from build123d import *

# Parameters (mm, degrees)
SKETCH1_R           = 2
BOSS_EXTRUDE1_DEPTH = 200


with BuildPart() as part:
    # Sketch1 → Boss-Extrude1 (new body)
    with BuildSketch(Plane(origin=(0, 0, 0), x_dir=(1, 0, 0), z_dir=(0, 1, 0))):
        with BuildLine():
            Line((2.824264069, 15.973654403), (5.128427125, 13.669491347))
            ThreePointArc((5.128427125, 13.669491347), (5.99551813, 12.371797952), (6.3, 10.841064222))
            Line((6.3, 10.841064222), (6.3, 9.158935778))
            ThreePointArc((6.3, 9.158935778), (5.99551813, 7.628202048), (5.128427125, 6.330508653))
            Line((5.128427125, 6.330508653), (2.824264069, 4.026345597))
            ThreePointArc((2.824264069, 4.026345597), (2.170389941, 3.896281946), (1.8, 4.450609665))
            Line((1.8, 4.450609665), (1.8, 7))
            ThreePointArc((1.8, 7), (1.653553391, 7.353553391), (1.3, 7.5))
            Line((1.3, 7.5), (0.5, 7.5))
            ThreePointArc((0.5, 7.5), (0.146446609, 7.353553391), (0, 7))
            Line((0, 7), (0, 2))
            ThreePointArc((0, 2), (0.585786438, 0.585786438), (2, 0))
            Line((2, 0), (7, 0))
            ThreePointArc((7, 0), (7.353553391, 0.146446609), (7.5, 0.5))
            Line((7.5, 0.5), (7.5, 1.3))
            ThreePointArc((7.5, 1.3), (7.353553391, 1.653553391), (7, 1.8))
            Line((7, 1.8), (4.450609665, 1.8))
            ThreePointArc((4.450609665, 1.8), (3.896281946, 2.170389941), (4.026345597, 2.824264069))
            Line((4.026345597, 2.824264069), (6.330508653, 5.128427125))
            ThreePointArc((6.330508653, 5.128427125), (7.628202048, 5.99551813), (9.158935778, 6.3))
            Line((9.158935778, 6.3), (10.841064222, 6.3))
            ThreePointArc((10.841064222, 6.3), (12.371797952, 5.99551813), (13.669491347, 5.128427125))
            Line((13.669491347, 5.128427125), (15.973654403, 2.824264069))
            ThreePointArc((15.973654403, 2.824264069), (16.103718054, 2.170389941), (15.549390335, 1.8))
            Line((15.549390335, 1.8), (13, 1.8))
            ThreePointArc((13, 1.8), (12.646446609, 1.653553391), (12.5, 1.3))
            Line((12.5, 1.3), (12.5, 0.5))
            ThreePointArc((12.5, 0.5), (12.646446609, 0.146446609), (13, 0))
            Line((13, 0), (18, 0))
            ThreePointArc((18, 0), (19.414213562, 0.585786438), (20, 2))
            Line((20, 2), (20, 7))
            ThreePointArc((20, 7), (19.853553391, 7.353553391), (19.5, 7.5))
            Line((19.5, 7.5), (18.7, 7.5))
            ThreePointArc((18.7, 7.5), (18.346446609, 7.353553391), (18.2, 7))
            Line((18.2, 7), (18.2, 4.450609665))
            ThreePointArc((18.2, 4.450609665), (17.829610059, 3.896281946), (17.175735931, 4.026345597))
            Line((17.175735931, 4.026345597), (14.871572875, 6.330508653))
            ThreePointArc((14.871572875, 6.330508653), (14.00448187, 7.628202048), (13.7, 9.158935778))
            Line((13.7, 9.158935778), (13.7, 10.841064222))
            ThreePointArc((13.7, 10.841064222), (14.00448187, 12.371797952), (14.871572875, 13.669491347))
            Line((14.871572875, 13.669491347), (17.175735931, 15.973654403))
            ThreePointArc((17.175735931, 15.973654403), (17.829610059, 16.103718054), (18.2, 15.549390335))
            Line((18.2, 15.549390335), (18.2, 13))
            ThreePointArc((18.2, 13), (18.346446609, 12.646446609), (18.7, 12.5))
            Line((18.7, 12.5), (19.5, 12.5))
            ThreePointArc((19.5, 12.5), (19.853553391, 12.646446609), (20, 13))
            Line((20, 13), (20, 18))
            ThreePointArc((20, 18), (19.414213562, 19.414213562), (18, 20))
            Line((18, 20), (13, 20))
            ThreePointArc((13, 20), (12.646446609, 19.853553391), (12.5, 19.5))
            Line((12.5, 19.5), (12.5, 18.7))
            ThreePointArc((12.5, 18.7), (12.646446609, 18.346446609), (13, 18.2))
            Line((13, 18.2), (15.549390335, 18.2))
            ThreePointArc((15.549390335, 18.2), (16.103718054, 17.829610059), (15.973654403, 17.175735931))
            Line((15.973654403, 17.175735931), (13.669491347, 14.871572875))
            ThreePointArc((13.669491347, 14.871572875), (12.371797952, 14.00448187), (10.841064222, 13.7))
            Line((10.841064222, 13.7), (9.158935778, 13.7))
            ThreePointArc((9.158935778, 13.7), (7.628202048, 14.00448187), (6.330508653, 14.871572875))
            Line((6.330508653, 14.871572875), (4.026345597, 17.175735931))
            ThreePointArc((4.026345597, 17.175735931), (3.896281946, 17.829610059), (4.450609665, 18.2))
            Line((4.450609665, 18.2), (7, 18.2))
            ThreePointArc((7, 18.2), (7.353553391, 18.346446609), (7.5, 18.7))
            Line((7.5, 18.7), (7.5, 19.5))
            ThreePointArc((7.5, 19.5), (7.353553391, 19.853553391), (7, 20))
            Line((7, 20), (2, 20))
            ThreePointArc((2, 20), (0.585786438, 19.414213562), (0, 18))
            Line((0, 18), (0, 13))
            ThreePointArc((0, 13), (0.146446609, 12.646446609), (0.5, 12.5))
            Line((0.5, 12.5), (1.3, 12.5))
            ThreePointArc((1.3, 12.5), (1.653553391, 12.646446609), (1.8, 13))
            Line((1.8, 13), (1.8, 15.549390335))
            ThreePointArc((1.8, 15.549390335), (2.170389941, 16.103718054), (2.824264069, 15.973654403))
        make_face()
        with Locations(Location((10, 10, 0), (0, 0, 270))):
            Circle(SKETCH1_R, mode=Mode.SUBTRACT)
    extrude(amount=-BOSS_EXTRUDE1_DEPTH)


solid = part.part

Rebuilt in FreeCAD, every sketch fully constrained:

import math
import FreeCAD as App
import Part
import Sketcher

doc = App.newDocument("Part")
body = doc.addObject("PartDesign::Body", "Body")

sketch1 = doc.addObject("Sketcher::SketchObject", "Sketch")
body.addObject(sketch1)
sketch1.AttachmentSupport = (doc.XZ_Plane, [""])
sketch1.MapMode = "FlatFace"
sketch1.addGeometry([
    Part.LineSegment(App.Vector(2.82, -15.97, 0), App.Vector(5.13, -13.67, 0)),
    Part.ArcOfCircle(Part.Circle(App.Vector(2.3, -10.84, 0), App.Vector(0, 0, 1), 4), math.radians(-45), math.radians(0)),
    Part.LineSegment(App.Vector(6.3, -10.84, 0), App.Vector(6.3, -9.16, 0)),
    Part.ArcOfCircle(Part.Circle(App.Vector(2.3, -9.16, 0), App.Vector(0, 0, 1), 4), math.radians(0), math.radians(45)),
    Part.LineSegment(App.Vector(5.13, -6.33, 0), App.Vector(2.82, -4.03, 0)),
    Part.ArcOfCircle(Part.Circle(App.Vector(2.4, -4.45, 0), App.Vector(0, 0, 1), 0.6), math.radians(45), math.radians(180)),
    Part.LineSegment(App.Vector(1.8, -4.45, 0), App.Vector(1.8, -7, 0)),
    Part.ArcOfCircle(Part.Circle(App.Vector(1.3, -7, 0), App.Vector(0, 0, 1), 0.5), math.radians(-90), math.radians(0)),
    Part.LineSegment(App.Vector(1.3, -7.5, 0), App.Vector(0.5, -7.5, 0)),
    Part.ArcOfCircle(Part.Circle(App.Vector(0.5, -7, 0), App.Vector(0, 0, 1), 0.5), math.radians(180), math.radians(270)),
    Part.LineSegment(App.Vector(0, -7, 0), App.Vector(0, -2, 0)),
    Part.ArcOfCircle(Part.Circle(App.Vector(2, -2, 0), App.Vector(0, 0, 1), 2), math.radians(90), math.radians(180)),
    Part.LineSegment(App.Vector(2, 0, 0), App.Vector(7, 0, 0)),
    Part.ArcOfCircle(Part.Circle(App.Vector(7, -0.5, 0), App.Vector(0, 0, 1), 0.5), math.radians(0), math.radians(90)),
    Part.LineSegment(App.Vector(7.5, -0.5, 0), App.Vector(7.5, -1.3, 0)),
    Part.ArcOfCircle(Part.Circle(App.Vector(7, -1.3, 0), App.Vector(0, 0, 1), 0.5), math.radians(-90), math.radians(0)),
    Part.LineSegment(App.Vector(7, -1.8, 0), App.Vector(4.45, -1.8, 0)),
    Part.ArcOfCircle(Part.Circle(App.Vector(4.45, -2.4, 0), App.Vector(0, 0, 1), 0.6), math.radians(90), math.radians(225)),
    Part.LineSegment(App.Vector(4.03, -2.82, 0), App.Vector(6.33, -5.13, 0)),
    Part.ArcOfCircle(Part.Circle(App.Vector(9.16, -2.3, 0), App.Vector(0, 0, 1), 4), math.radians(-135), math.radians(-90)),
    Part.LineSegment(App.Vector(9.16, -6.3, 0), App.Vector(10.84, -6.3, 0)),
    Part.ArcOfCircle(Part.Circle(App.Vector(10.84, -2.3, 0), App.Vector(0, 0, 1), 4), math.radians(-90), math.radians(-45)),
    Part.LineSegment(App.Vector(13.67, -5.13, 0), App.Vector(15.97, -2.82, 0)),
    Part.ArcOfCircle(Part.Circle(App.Vector(15.55, -2.4, 0), App.Vector(0, 0, 1), 0.6), math.radians(-45), math.radians(90)),
    Part.LineSegment(App.Vector(15.55, -1.8, 0), App.Vector(13, -1.8, 0)),
    Part.ArcOfCircle(Part.Circle(App.Vector(13, -1.3, 0), App.Vector(0, 0, 1), 0.5), math.radians(180), math.radians(270)),
    Part.LineSegment(App.Vector(12.5, -1.3, 0), App.Vector(12.5, -0.5, 0)),
    Part.ArcOfCircle(Part.Circle(App.Vector(13, -0.5, 0), App.Vector(0, 0, 1), 0.5), math.radians(90), math.radians(180)),
    Part.LineSegment(App.Vector(13, 0, 0), App.Vector(18, 0, 0)),
    Part.ArcOfCircle(Part.Circle(App.Vector(18, -2, 0), App.Vector(0, 0, 1), 2), math.radians(0), math.radians(90)),
    Part.LineSegment(App.Vector(20, -2, 0), App.Vector(20, -7, 0)),
    Part.ArcOfCircle(Part.Circle(App.Vector(19.5, -7, 0), App.Vector(0, 0, 1), 0.5), math.radians(-90), math.radians(0)),
    Part.LineSegment(App.Vector(19.5, -7.5, 0), App.Vector(18.7, -7.5, 0)),
    Part.ArcOfCircle(Part.Circle(App.Vector(18.7, -7, 0), App.Vector(0, 0, 1), 0.5), math.radians(180), math.radians(270)),
    Part.LineSegment(App.Vector(18.2, -7, 0), App.Vector(18.2, -4.45, 0)),
    Part.ArcOfCircle(Part.Circle(App.Vector(17.6, -4.45, 0), App.Vector(0, 0, 1), 0.6), math.radians(0), math.radians(135)),
    Part.LineSegment(App.Vector(17.18, -4.03, 0), App.Vector(14.87, -6.33, 0)),
    Part.ArcOfCircle(Part.Circle(App.Vector(17.7, -9.16, 0), App.Vector(0, 0, 1), 4), math.radians(135), math.radians(180)),
    Part.LineSegment(App.Vector(13.7, -9.16, 0), App.Vector(13.7, -10.84, 0)),
    Part.ArcOfCircle(Part.Circle(App.Vector(17.7, -10.84, 0), App.Vector(0, 0, 1), 4), math.radians(180), math.radians(225)),
    Part.LineSegment(App.Vector(14.87, -13.67, 0), App.Vector(17.18, -15.97, 0)),
    Part.ArcOfCircle(Part.Circle(App.Vector(17.6, -15.55, 0), App.Vector(0, 0, 1), 0.6), math.radians(-135), math.radians(0)),
    Part.LineSegment(App.Vector(18.2, -15.55, 0), App.Vector(18.2, -13, 0)),
    Part.ArcOfCircle(Part.Circle(App.Vector(18.7, -13, 0), App.Vector(0, 0, 1), 0.5), math.radians(90), math.radians(180)),
    Part.LineSegment(App.Vector(18.7, -12.5, 0), App.Vector(19.5, -12.5, 0)),
    Part.ArcOfCircle(Part.Circle(App.Vector(19.5, -13, 0), App.Vector(0, 0, 1), 0.5), math.radians(0), math.radians(90)),
    Part.LineSegment(App.Vector(20, -13, 0), App.Vector(20, -18, 0)),
    Part.ArcOfCircle(Part.Circle(App.Vector(18, -18, 0), App.Vector(0, 0, 1), 2), math.radians(-90), math.radians(0)),
    Part.LineSegment(App.Vector(18, -20, 0), App.Vector(13, -20, 0)),
    Part.ArcOfCircle(Part.Circle(App.Vector(13, -19.5, 0), App.Vector(0, 0, 1), 0.5), math.radians(180), math.radians(270)),
    Part.LineSegment(App.Vector(12.5, -19.5, 0), App.Vector(12.5, -18.7, 0)),
    Part.ArcOfCircle(Part.Circle(App.Vector(13, -18.7, 0), App.Vector(0, 0, 1), 0.5), math.radians(90), math.radians(180)),
    Part.LineSegment(App.Vector(13, -18.2, 0), App.Vector(15.55, -18.2, 0)),
    Part.ArcOfCircle(Part.Circle(App.Vector(15.55, -17.6, 0), App.Vector(0, 0, 1), 0.6), math.radians(-90), math.radians(45)),
    Part.LineSegment(App.Vector(15.97, -17.18, 0), App.Vector(13.67, -14.87, 0)),
    Part.ArcOfCircle(Part.Circle(App.Vector(10.84, -17.7, 0), App.Vector(0, 0, 1), 4), math.radians(45), math.radians(90)),
    Part.LineSegment(App.Vector(10.84, -13.7, 0), App.Vector(9.16, -13.7, 0)),
    Part.ArcOfCircle(Part.Circle(App.Vector(9.16, -17.7, 0), App.Vector(0, 0, 1), 4), math.radians(90), math.radians(135)),
    Part.LineSegment(App.Vector(6.33, -14.87, 0), App.Vector(4.03, -17.18, 0)),
    Part.ArcOfCircle(Part.Circle(App.Vector(4.45, -17.6, 0), App.Vector(0, 0, 1), 0.6), math.radians(135), math.radians(270)),
    Part.LineSegment(App.Vector(4.45, -18.2, 0), App.Vector(7, -18.2, 0)),
    Part.ArcOfCircle(Part.Circle(App.Vector(7, -18.7, 0), App.Vector(0, 0, 1), 0.5), math.radians(0), math.radians(90)),
    Part.LineSegment(App.Vector(7.5, -18.7, 0), App.Vector(7.5, -19.5, 0)),
    Part.ArcOfCircle(Part.Circle(App.Vector(7, -19.5, 0), App.Vector(0, 0, 1), 0.5), math.radians(-90), math.radians(0)),
    Part.LineSegment(App.Vector(7, -20, 0), App.Vector(2, -20, 0)),
    Part.ArcOfCircle(Part.Circle(App.Vector(2, -18, 0), App.Vector(0, 0, 1), 2), math.radians(-180), math.radians(-90)),
    Part.LineSegment(App.Vector(0, -18, 0), App.Vector(0, -13, 0)),
    Part.ArcOfCircle(Part.Circle(App.Vector(0.5, -13, 0), App.Vector(0, 0, 1), 0.5), math.radians(90), math.radians(180)),
    Part.LineSegment(App.Vector(0.5, -12.5, 0), App.Vector(1.3, -12.5, 0)),
    Part.ArcOfCircle(Part.Circle(App.Vector(1.3, -13, 0), App.Vector(0, 0, 1), 0.5), math.radians(0), math.radians(90)),
    Part.LineSegment(App.Vector(1.8, -13, 0), App.Vector(1.8, -15.55, 0)),
    Part.ArcOfCircle(Part.Circle(App.Vector(2.4, -15.55, 0), App.Vector(0, 0, 1), 0.6), math.radians(-180), math.radians(-45)),
    Part.Circle(App.Vector(10, -10, 0), App.Vector(0, 0, 1), 2),
], False)
sketch1.addConstraint([
    Sketcher.Constraint("Tangent", 0, 2, 1, 1),
    Sketcher.Constraint("Tangent", 1, 2, 2, 1),
    Sketcher.Constraint("Tangent", 2, 2, 3, 1),
    Sketcher.Constraint("Tangent", 3, 2, 4, 1),
    Sketcher.Constraint("Tangent", 4, 2, 5, 1),
    Sketcher.Constraint("Tangent", 5, 2, 6, 1),
    Sketcher.Constraint("Tangent", 6, 2, 7, 2),
    Sketcher.Constraint("Tangent", 7, 1, 8, 1),
    Sketcher.Constraint("Tangent", 8, 2, 9, 2),
    Sketcher.Constraint("Tangent", 9, 1, 10, 1),
    Sketcher.Constraint("Tangent", 10, 2, 11, 2),
    Sketcher.Constraint("Tangent", 11, 1, 12, 1),
    Sketcher.Constraint("Tangent", 12, 2, 13, 2),
    Sketcher.Constraint("Tangent", 13, 1, 14, 1),
    Sketcher.Constraint("Tangent", 14, 2, 15, 2),
    Sketcher.Constraint("Tangent", 15, 1, 16, 1),
    Sketcher.Constraint("Tangent", 16, 2, 17, 1),
    Sketcher.Constraint("Tangent", 17, 2, 18, 1),
    Sketcher.Constraint("Tangent", 18, 2, 19, 1),
    Sketcher.Constraint("Tangent", 19, 2, 20, 1),
    Sketcher.Constraint("Tangent", 20, 2, 21, 1),
    Sketcher.Constraint("Tangent", 21, 2, 22, 1),
    Sketcher.Constraint("Tangent", 22, 2, 23, 1),
    Sketcher.Constraint("Tangent", 23, 2, 24, 1),
    Sketcher.Constraint("Tangent", 24, 2, 25, 2),
    Sketcher.Constraint("Tangent", 25, 1, 26, 1),
    Sketcher.Constraint("Tangent", 26, 2, 27, 2),
    Sketcher.Constraint("Tangent", 27, 1, 28, 1),
    Sketcher.Constraint("Tangent", 28, 2, 29, 2),
    Sketcher.Constraint("Tangent", 29, 1, 30, 1),
    Sketcher.Constraint("Tangent", 30, 2, 31, 2),
    Sketcher.Constraint("Tangent", 31, 1, 32, 1),
    Sketcher.Constraint("Tangent", 32, 2, 33, 2),
    Sketcher.Constraint("Tangent", 33, 1, 34, 1),
    Sketcher.Constraint("Tangent", 34, 2, 35, 1),
    Sketcher.Constraint("Tangent", 35, 2, 36, 1),
    Sketcher.Constraint("Tangent", 36, 2, 37, 1),
    Sketcher.Constraint("Tangent", 37, 2, 38, 1),
    Sketcher.Constraint("Tangent", 38, 2, 39, 1),
    Sketcher.Constraint("Tangent", 39, 2, 40, 1),
    Sketcher.Constraint("Tangent", 40, 2, 41, 1),
    Sketcher.Constraint("Tangent", 41, 2, 42, 1),
    Sketcher.Constraint("Tangent", 42, 2, 43, 2),
    Sketcher.Constraint("Tangent", 43, 1, 44, 1),
    Sketcher.Constraint("Tangent", 44, 2, 45, 2),
    Sketcher.Constraint("Tangent", 45, 1, 46, 1),
    Sketcher.Constraint("Tangent", 46, 2, 47, 2),
    Sketcher.Constraint("Tangent", 47, 1, 48, 1),
    Sketcher.Constraint("Tangent", 48, 2, 49, 2),
    Sketcher.Constraint("Tangent", 49, 1, 50, 1),
    Sketcher.Constraint("Tangent", 50, 2, 51, 2),
    Sketcher.Constraint("Tangent", 51, 1, 52, 1),
    Sketcher.Constraint("Tangent", 52, 2, 53, 1),
    Sketcher.Constraint("Tangent", 53, 2, 54, 1),
    Sketcher.Constraint("Tangent", 54, 2, 55, 1),
    Sketcher.Constraint("Tangent", 55, 2, 56, 1),
    Sketcher.Constraint("Tangent", 56, 2, 57, 1),
    Sketcher.Constraint("Tangent", 57, 2, 58, 1),
    Sketcher.Constraint("Tangent", 58, 2, 59, 1),
    Sketcher.Constraint("Tangent", 59, 2, 60, 1),
    Sketcher.Constraint("Tangent", 60, 2, 61, 2),
    Sketcher.Constraint("Tangent", 61, 1, 62, 1),
    Sketcher.Constraint("Tangent", 62, 2, 63, 2),
    Sketcher.Constraint("Tangent", 63, 1, 64, 1),
    Sketcher.Constraint("Tangent", 64, 2, 65, 2),
    Sketcher.Constraint("Tangent", 65, 1, 66, 1),
    Sketcher.Constraint("Tangent", 66, 2, 67, 2),
    Sketcher.Constraint("Tangent", 67, 1, 68, 1),
    Sketcher.Constraint("Tangent", 68, 2, 69, 2),
    Sketcher.Constraint("Tangent", 69, 1, 70, 1),
    Sketcher.Constraint("Tangent", 70, 2, 71, 1),
    Sketcher.Constraint("Tangent", 71, 2, 0, 1),
    Sketcher.Constraint("Vertical", 2),
    Sketcher.Constraint("Vertical", 6),
    Sketcher.Constraint("Horizontal", 8),
    Sketcher.Constraint("Vertical", 10),
    Sketcher.Constraint("Horizontal", 12),
    Sketcher.Constraint("Vertical", 14),
    Sketcher.Constraint("Horizontal", 16),
    Sketcher.Constraint("Horizontal", 20),
    Sketcher.Constraint("Horizontal", 24),
    Sketcher.Constraint("Vertical", 26),
    Sketcher.Constraint("Horizontal", 28),
    Sketcher.Constraint("Vertical", 30),
    Sketcher.Constraint("Horizontal", 32),
    Sketcher.Constraint("Vertical", 34),
    Sketcher.Constraint("Vertical", 38),
    Sketcher.Constraint("Vertical", 42),
    Sketcher.Constraint("Horizontal", 44),
    Sketcher.Constraint("Vertical", 46),
    Sketcher.Constraint("Horizontal", 48),
    Sketcher.Constraint("Vertical", 50),
    Sketcher.Constraint("Horizontal", 52),
    Sketcher.Constraint("Horizontal", 56),
    Sketcher.Constraint("Horizontal", 60),
    Sketcher.Constraint("Vertical", 62),
    Sketcher.Constraint("Horizontal", 64),
    Sketcher.Constraint("Vertical", 66),
    Sketcher.Constraint("Horizontal", 68),
    Sketcher.Constraint("Vertical", 70),
    Sketcher.Constraint("Equal", 1, 3),
    Sketcher.Constraint("Equal", 7, 9),
    Sketcher.Constraint("Equal", 9, 13),
    Sketcher.Constraint("Equal", 13, 15),
    Sketcher.Constraint("Equal", 5, 17),
    Sketcher.Constraint("Equal", 3, 19),
    Sketcher.Constraint("Equal", 19, 21),
    Sketcher.Constraint("Equal", 17, 23),
    Sketcher.Constraint("Equal", 15, 25),
    Sketcher.Constraint("Equal", 25, 27),
    Sketcher.Constraint("Equal", 11, 29),
    Sketcher.Constraint("Equal", 27, 31),
    Sketcher.Constraint("Equal", 31, 33),
    Sketcher.Constraint("Equal", 23, 35),
    Sketcher.Constraint("Equal", 21, 37),
    Sketcher.Constraint("Equal", 37, 39),
    Sketcher.Constraint("Equal", 35, 41),
    Sketcher.Constraint("Equal", 33, 43),
    Sketcher.Constraint("Equal", 43, 45),
    Sketcher.Constraint("Equal", 29, 47),
    Sketcher.Constraint("Equal", 45, 49),
    Sketcher.Constraint("Equal", 49, 51),
    Sketcher.Constraint("Equal", 41, 53),
    Sketcher.Constraint("Equal", 39, 55),
    Sketcher.Constraint("Equal", 55, 57),
    Sketcher.Constraint("Equal", 53, 59),
    Sketcher.Constraint("Equal", 51, 61),
    Sketcher.Constraint("Equal", 61, 63),
    Sketcher.Constraint("Equal", 47, 65),
    Sketcher.Constraint("Equal", 63, 67),
    Sketcher.Constraint("Equal", 67, 69),
    Sketcher.Constraint("Equal", 59, 71),
    Sketcher.Constraint("Equal", 65, 72),
    Sketcher.Constraint("PointOnObject", 9, 1, -2),
    Sketcher.Constraint("PointOnObject", 11, 1, -1),
    Sketcher.Constraint("PointOnObject", 27, 1, -1),
    Sketcher.Constraint("PointOnObject", 65, 1, -2),
    Sketcher.Constraint("Perpendicular", 0, 4),
    Sketcher.Constraint("Parallel", 4, 18),
    Sketcher.Constraint("Perpendicular", 18, 22),
    Sketcher.Constraint("Parallel", 22, 36),
    Sketcher.Constraint("Perpendicular", 36, 40),
    Sketcher.Constraint("Parallel", 40, 54),
    Sketcher.Constraint("Perpendicular", 54, 58),
    Sketcher.Constraint("Horizontal", 17, 3, 23, 3),
    Sketcher.Constraint("Horizontal", 9, 3, 31, 3),
    Sketcher.Constraint("Horizontal", 5, 3, 35, 3),
    Sketcher.Constraint("Horizontal", 3, 3, 37, 3),
    Sketcher.Constraint("Horizontal", 1, 3, 39, 3),
    Sketcher.Constraint("Horizontal", 53, 3, 59, 3),
    Sketcher.Constraint("Horizontal", 49, 3, 63, 3),
    Sketcher.Constraint("Horizontal", 45, 3, 67, 3),
    Sketcher.Constraint("Horizontal", 41, 3, 71, 3),
    Sketcher.Constraint("Horizontal", 18, 2, 21, 2),
    Sketcher.Constraint("Vertical", 35, 3, 41, 3),
    Sketcher.Constraint("Vertical", 31, 3, 45, 3),
    Sketcher.Constraint("Vertical", 27, 3, 49, 3),
    Sketcher.Constraint("Vertical", 23, 3, 53, 3),
    Sketcher.Constraint("Vertical", 21, 3, 55, 3),
    Sketcher.Constraint("Vertical", 19, 3, 57, 3),
    Sketcher.Constraint("Vertical", 15, 3, 61, 3),
    Sketcher.Constraint("Equal", 16, 24),
    Sketcher.Constraint("Equal", 12, 28),
    Sketcher.Constraint("Equal", 8, 32),
    Sketcher.Constraint("Equal", 56, 2),
    Sketcher.Constraint("Equal", 60, 6),
    Sketcher.Constraint("Equal", 64, 10),
    Sketcher.Constraint("Equal", 68, 14),
    Sketcher.Constraint("Equal", 34, 42),
    Sketcher.Constraint("Equal", 30, 46),
    Sketcher.Constraint("Equal", 26, 50),
    Sketcher.Constraint("Equal", 4, 18),
    Sketcher.Constraint("Diameter", 72, 4.0),
    Sketcher.Constraint("Radius", 1, 4.0),
    Sketcher.Constraint("Radius", 5, 0.6),
    Sketcher.Constraint("Radius", 7, 0.5),
    Sketcher.Constraint("DistanceX", 12, 1, 12, 2, 5.0),
    Sketcher.Constraint("DistanceX", 8, 2, 8, 1, 0.8),
    Sketcher.Constraint("DistanceX", -1, 1, 25, 3, 13.0),
    Sketcher.Constraint("DistanceX", -1, 1, 72, 3, 10.0),
    Sketcher.Constraint("DistanceY", 72, 3, -1, 1, 10.0),
    Sketcher.Constraint("DistanceX", -1, 1, 1, 3, 2.3),
    Sketcher.Constraint("DistanceX", 16, 2, 16, 1, 2.54939),
])
pad1 = doc.addObject("PartDesign::Pad", "Pad")
body.addObject(pad1)
pad1.Profile = sketch1
pad1.Length = 200

doc.recompute()
